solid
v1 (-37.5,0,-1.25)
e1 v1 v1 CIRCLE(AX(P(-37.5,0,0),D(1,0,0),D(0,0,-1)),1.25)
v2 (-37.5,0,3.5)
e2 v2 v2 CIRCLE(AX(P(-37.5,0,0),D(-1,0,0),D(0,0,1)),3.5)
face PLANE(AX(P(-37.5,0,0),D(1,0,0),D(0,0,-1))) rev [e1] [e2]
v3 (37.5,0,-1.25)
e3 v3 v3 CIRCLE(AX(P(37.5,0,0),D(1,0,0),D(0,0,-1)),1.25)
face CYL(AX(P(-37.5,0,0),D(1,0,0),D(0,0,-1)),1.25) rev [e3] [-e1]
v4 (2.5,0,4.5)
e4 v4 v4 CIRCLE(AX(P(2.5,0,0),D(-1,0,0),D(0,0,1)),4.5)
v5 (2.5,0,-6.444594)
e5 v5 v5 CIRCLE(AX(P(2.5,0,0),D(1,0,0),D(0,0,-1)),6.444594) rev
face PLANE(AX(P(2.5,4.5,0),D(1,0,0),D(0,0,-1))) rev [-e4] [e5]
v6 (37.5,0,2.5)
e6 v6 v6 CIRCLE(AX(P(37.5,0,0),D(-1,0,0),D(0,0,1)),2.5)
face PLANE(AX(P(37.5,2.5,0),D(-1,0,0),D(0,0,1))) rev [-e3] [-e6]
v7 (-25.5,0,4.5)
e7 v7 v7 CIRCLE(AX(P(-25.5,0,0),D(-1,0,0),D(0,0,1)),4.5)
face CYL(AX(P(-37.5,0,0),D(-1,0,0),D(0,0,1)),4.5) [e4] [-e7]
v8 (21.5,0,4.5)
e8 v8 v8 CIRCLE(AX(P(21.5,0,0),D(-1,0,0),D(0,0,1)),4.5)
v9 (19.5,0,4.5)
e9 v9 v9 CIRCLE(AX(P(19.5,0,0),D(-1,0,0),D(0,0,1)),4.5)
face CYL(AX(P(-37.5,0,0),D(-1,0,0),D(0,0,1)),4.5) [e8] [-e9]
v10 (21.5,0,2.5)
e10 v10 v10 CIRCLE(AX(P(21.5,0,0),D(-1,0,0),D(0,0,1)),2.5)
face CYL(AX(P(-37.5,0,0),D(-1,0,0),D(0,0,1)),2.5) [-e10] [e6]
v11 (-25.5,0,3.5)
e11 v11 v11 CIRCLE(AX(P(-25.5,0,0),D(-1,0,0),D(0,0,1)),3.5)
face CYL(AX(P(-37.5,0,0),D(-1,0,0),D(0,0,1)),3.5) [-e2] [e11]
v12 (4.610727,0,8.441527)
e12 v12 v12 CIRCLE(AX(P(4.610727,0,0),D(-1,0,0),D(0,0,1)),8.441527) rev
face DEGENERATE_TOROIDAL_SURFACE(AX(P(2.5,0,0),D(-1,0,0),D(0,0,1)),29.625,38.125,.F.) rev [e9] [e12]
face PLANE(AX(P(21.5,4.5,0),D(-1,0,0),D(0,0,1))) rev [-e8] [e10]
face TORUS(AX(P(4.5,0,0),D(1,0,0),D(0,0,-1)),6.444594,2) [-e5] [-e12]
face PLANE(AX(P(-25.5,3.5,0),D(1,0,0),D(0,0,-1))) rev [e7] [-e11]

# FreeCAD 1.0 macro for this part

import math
import FreeCAD as App
import Part
import Sketcher

V = App.Vector


def edges_at(feature, points):
    """Names of the edges that pass closest to the given points."""
    edges = feature.Shape.Edges
    near = lambda p: min(range(len(edges)), key=lambda i: edges[i].distToShape(Part.Vertex(*p))[0])
    return sorted({f"Edge{near(p) + 1}" for p in points})

doc = App.newDocument("Part")
body = doc.addObject("PartDesign::Body", "Body")

sketch1 = doc.addObject("Sketcher::SketchObject", "Sketch")
body.addObject(sketch1)
sketch1.AttachmentSupport = (doc.XY_Plane, [""])
sketch1.MapMode = "FlatFace"
sketch1.addGeometry([
    Part.LineSegment(V(-37.5, 0, 0), V(37.5, 0, 0)),
    Part.LineSegment(V(37.5, 0, 0), V(37.5, 2.5, 0)),
    Part.LineSegment(V(37.5, 2.5, 0), V(21.5, 2.5, 0)),
    Part.LineSegment(V(21.5, 2.5, 0), V(21.5, 4.5, 0)),
    Part.LineSegment(V(21.5, 4.5, 0), V(19.5, 4.5, 0)),
    Part.ArcOfCircle(Part.Circle(V(2.5, -29.6, 0), V(0, 0, 1), 38.1), math.radians(64), math.radians(90)),
    Part.LineSegment(V(2.5, 8.5, 0), V(2.5, 4.5, 0)),
    Part.LineSegment(V(2.5, 4.5, 0), V(-25.5, 4.5, 0)),
    Part.LineSegment(V(-25.5, 4.5, 0), V(-25.5, 3.5, 0)),
    Part.LineSegment(V(-25.5, 3.5, 0), V(-37.5, 3.5, 0)),
    Part.LineSegment(V(-37.5, 3.5, 0), V(-37.5, 0, 0)),
], False)
sketch1.addConstraint([
    Sketcher.Constraint("Coincident", 0, 2, 1, 1),
    Sketcher.Constraint("Coincident", 1, 2, 2, 1),
    Sketcher.Constraint("Coincident", 2, 2, 3, 1),
    Sketcher.Constraint("Coincident", 3, 2, 4, 1),
    Sketcher.Constraint("Coincident", 4, 2, 5, 1),
    Sketcher.Constraint("Coincident", 5, 2, 6, 1),
    Sketcher.Constraint("Coincident", 6, 2, 7, 1),
    Sketcher.Constraint("Coincident", 7, 2, 8, 1),
    Sketcher.Constraint("Coincident", 8, 2, 9, 1),
    Sketcher.Constraint("Coincident", 9, 2, 10, 1),
    Sketcher.Constraint("Coincident", 10, 2, 0, 1),
    Sketcher.Constraint("Horizontal", 0),
    Sketcher.Constraint("Vertical", 1),
    Sketcher.Constraint("Horizontal", 2),
    Sketcher.Constraint("Vertical", 3),
    Sketcher.Constraint("Horizontal", 4),
    Sketcher.Constraint("Vertical", 6),
    Sketcher.Constraint("Horizontal", 7),
    Sketcher.Constraint("Vertical", 8),
    Sketcher.Constraint("Horizontal", 9),
    Sketcher.Constraint("Vertical", 10),
    Sketcher.Constraint("Symmetric", 0, 2, 10, 2, -1, 1),
    Sketcher.Constraint("Horizontal", 4, 2, 6, 2),
    Sketcher.Constraint("Equal", 4, 3),
    Sketcher.Constraint("DistanceX", 0, 1, 0, 2, 75.0),
    Sketcher.Constraint("DistanceX", 2, 2, 2, 1, 16.0),
    Sketcher.Constraint("DistanceX", 4, 2, 4, 1, 2.0),
    Sketcher.Constraint("DistanceX", 7, 2, 7, 1, 28.0),
    Sketcher.Constraint("DistanceX", 9, 2, 9, 1, 12.0),
    Sketcher.Constraint("DistanceY", 6, 2, 6, 1, 4.0),
    Sketcher.Constraint("DistanceY", 8, 2, 8, 1, 1.0),
    Sketcher.Constraint("DistanceY", 1, 1, 1, 2, 2.5),
    Sketcher.Constraint("Radius", 5, 38.125),
])
revolution = doc.addObject("PartDesign::Revolution", "Revolution")
body.addObject(revolution)
revolution.Profile = sketch1
revolution.ReferenceAxis = (sketch1, ["H_Axis"])
revolution.Angle = 360
doc.recompute()

fillet = doc.addObject("PartDesign::Fillet", "Fillet")
body.addObject(fillet)
fillet.Base = (revolution, edges_at(revolution, [(2.5, 0, -8.5)]))
fillet.Radius = 2

sketch2 = doc.addObject("Sketcher::SketchObject", "Sketch001")
body.addObject(sketch2)
sketch2.AttachmentSupport = (doc.YZ_Plane, [""])
sketch2.MapMode = "FlatFace"
sketch2.AttachmentOffset = App.Placement(V(0, 0, 37.5), App.Rotation())
sketch2.addGeometry(Part.Circle(V(0, 0, 0), V(0, 0, 1), 1.2), False)
sketch2.addConstraint([
    Sketcher.Constraint("Coincident", 0, 3, -1, 1),
    Sketcher.Constraint("Diameter", 0, 2.5),
])
pocket1 = doc.addObject("PartDesign::Pocket", "Pocket")
body.addObject(pocket1)
pocket1.Profile = sketch2
pocket1.Type = "ThroughAll"

doc.recompute()
